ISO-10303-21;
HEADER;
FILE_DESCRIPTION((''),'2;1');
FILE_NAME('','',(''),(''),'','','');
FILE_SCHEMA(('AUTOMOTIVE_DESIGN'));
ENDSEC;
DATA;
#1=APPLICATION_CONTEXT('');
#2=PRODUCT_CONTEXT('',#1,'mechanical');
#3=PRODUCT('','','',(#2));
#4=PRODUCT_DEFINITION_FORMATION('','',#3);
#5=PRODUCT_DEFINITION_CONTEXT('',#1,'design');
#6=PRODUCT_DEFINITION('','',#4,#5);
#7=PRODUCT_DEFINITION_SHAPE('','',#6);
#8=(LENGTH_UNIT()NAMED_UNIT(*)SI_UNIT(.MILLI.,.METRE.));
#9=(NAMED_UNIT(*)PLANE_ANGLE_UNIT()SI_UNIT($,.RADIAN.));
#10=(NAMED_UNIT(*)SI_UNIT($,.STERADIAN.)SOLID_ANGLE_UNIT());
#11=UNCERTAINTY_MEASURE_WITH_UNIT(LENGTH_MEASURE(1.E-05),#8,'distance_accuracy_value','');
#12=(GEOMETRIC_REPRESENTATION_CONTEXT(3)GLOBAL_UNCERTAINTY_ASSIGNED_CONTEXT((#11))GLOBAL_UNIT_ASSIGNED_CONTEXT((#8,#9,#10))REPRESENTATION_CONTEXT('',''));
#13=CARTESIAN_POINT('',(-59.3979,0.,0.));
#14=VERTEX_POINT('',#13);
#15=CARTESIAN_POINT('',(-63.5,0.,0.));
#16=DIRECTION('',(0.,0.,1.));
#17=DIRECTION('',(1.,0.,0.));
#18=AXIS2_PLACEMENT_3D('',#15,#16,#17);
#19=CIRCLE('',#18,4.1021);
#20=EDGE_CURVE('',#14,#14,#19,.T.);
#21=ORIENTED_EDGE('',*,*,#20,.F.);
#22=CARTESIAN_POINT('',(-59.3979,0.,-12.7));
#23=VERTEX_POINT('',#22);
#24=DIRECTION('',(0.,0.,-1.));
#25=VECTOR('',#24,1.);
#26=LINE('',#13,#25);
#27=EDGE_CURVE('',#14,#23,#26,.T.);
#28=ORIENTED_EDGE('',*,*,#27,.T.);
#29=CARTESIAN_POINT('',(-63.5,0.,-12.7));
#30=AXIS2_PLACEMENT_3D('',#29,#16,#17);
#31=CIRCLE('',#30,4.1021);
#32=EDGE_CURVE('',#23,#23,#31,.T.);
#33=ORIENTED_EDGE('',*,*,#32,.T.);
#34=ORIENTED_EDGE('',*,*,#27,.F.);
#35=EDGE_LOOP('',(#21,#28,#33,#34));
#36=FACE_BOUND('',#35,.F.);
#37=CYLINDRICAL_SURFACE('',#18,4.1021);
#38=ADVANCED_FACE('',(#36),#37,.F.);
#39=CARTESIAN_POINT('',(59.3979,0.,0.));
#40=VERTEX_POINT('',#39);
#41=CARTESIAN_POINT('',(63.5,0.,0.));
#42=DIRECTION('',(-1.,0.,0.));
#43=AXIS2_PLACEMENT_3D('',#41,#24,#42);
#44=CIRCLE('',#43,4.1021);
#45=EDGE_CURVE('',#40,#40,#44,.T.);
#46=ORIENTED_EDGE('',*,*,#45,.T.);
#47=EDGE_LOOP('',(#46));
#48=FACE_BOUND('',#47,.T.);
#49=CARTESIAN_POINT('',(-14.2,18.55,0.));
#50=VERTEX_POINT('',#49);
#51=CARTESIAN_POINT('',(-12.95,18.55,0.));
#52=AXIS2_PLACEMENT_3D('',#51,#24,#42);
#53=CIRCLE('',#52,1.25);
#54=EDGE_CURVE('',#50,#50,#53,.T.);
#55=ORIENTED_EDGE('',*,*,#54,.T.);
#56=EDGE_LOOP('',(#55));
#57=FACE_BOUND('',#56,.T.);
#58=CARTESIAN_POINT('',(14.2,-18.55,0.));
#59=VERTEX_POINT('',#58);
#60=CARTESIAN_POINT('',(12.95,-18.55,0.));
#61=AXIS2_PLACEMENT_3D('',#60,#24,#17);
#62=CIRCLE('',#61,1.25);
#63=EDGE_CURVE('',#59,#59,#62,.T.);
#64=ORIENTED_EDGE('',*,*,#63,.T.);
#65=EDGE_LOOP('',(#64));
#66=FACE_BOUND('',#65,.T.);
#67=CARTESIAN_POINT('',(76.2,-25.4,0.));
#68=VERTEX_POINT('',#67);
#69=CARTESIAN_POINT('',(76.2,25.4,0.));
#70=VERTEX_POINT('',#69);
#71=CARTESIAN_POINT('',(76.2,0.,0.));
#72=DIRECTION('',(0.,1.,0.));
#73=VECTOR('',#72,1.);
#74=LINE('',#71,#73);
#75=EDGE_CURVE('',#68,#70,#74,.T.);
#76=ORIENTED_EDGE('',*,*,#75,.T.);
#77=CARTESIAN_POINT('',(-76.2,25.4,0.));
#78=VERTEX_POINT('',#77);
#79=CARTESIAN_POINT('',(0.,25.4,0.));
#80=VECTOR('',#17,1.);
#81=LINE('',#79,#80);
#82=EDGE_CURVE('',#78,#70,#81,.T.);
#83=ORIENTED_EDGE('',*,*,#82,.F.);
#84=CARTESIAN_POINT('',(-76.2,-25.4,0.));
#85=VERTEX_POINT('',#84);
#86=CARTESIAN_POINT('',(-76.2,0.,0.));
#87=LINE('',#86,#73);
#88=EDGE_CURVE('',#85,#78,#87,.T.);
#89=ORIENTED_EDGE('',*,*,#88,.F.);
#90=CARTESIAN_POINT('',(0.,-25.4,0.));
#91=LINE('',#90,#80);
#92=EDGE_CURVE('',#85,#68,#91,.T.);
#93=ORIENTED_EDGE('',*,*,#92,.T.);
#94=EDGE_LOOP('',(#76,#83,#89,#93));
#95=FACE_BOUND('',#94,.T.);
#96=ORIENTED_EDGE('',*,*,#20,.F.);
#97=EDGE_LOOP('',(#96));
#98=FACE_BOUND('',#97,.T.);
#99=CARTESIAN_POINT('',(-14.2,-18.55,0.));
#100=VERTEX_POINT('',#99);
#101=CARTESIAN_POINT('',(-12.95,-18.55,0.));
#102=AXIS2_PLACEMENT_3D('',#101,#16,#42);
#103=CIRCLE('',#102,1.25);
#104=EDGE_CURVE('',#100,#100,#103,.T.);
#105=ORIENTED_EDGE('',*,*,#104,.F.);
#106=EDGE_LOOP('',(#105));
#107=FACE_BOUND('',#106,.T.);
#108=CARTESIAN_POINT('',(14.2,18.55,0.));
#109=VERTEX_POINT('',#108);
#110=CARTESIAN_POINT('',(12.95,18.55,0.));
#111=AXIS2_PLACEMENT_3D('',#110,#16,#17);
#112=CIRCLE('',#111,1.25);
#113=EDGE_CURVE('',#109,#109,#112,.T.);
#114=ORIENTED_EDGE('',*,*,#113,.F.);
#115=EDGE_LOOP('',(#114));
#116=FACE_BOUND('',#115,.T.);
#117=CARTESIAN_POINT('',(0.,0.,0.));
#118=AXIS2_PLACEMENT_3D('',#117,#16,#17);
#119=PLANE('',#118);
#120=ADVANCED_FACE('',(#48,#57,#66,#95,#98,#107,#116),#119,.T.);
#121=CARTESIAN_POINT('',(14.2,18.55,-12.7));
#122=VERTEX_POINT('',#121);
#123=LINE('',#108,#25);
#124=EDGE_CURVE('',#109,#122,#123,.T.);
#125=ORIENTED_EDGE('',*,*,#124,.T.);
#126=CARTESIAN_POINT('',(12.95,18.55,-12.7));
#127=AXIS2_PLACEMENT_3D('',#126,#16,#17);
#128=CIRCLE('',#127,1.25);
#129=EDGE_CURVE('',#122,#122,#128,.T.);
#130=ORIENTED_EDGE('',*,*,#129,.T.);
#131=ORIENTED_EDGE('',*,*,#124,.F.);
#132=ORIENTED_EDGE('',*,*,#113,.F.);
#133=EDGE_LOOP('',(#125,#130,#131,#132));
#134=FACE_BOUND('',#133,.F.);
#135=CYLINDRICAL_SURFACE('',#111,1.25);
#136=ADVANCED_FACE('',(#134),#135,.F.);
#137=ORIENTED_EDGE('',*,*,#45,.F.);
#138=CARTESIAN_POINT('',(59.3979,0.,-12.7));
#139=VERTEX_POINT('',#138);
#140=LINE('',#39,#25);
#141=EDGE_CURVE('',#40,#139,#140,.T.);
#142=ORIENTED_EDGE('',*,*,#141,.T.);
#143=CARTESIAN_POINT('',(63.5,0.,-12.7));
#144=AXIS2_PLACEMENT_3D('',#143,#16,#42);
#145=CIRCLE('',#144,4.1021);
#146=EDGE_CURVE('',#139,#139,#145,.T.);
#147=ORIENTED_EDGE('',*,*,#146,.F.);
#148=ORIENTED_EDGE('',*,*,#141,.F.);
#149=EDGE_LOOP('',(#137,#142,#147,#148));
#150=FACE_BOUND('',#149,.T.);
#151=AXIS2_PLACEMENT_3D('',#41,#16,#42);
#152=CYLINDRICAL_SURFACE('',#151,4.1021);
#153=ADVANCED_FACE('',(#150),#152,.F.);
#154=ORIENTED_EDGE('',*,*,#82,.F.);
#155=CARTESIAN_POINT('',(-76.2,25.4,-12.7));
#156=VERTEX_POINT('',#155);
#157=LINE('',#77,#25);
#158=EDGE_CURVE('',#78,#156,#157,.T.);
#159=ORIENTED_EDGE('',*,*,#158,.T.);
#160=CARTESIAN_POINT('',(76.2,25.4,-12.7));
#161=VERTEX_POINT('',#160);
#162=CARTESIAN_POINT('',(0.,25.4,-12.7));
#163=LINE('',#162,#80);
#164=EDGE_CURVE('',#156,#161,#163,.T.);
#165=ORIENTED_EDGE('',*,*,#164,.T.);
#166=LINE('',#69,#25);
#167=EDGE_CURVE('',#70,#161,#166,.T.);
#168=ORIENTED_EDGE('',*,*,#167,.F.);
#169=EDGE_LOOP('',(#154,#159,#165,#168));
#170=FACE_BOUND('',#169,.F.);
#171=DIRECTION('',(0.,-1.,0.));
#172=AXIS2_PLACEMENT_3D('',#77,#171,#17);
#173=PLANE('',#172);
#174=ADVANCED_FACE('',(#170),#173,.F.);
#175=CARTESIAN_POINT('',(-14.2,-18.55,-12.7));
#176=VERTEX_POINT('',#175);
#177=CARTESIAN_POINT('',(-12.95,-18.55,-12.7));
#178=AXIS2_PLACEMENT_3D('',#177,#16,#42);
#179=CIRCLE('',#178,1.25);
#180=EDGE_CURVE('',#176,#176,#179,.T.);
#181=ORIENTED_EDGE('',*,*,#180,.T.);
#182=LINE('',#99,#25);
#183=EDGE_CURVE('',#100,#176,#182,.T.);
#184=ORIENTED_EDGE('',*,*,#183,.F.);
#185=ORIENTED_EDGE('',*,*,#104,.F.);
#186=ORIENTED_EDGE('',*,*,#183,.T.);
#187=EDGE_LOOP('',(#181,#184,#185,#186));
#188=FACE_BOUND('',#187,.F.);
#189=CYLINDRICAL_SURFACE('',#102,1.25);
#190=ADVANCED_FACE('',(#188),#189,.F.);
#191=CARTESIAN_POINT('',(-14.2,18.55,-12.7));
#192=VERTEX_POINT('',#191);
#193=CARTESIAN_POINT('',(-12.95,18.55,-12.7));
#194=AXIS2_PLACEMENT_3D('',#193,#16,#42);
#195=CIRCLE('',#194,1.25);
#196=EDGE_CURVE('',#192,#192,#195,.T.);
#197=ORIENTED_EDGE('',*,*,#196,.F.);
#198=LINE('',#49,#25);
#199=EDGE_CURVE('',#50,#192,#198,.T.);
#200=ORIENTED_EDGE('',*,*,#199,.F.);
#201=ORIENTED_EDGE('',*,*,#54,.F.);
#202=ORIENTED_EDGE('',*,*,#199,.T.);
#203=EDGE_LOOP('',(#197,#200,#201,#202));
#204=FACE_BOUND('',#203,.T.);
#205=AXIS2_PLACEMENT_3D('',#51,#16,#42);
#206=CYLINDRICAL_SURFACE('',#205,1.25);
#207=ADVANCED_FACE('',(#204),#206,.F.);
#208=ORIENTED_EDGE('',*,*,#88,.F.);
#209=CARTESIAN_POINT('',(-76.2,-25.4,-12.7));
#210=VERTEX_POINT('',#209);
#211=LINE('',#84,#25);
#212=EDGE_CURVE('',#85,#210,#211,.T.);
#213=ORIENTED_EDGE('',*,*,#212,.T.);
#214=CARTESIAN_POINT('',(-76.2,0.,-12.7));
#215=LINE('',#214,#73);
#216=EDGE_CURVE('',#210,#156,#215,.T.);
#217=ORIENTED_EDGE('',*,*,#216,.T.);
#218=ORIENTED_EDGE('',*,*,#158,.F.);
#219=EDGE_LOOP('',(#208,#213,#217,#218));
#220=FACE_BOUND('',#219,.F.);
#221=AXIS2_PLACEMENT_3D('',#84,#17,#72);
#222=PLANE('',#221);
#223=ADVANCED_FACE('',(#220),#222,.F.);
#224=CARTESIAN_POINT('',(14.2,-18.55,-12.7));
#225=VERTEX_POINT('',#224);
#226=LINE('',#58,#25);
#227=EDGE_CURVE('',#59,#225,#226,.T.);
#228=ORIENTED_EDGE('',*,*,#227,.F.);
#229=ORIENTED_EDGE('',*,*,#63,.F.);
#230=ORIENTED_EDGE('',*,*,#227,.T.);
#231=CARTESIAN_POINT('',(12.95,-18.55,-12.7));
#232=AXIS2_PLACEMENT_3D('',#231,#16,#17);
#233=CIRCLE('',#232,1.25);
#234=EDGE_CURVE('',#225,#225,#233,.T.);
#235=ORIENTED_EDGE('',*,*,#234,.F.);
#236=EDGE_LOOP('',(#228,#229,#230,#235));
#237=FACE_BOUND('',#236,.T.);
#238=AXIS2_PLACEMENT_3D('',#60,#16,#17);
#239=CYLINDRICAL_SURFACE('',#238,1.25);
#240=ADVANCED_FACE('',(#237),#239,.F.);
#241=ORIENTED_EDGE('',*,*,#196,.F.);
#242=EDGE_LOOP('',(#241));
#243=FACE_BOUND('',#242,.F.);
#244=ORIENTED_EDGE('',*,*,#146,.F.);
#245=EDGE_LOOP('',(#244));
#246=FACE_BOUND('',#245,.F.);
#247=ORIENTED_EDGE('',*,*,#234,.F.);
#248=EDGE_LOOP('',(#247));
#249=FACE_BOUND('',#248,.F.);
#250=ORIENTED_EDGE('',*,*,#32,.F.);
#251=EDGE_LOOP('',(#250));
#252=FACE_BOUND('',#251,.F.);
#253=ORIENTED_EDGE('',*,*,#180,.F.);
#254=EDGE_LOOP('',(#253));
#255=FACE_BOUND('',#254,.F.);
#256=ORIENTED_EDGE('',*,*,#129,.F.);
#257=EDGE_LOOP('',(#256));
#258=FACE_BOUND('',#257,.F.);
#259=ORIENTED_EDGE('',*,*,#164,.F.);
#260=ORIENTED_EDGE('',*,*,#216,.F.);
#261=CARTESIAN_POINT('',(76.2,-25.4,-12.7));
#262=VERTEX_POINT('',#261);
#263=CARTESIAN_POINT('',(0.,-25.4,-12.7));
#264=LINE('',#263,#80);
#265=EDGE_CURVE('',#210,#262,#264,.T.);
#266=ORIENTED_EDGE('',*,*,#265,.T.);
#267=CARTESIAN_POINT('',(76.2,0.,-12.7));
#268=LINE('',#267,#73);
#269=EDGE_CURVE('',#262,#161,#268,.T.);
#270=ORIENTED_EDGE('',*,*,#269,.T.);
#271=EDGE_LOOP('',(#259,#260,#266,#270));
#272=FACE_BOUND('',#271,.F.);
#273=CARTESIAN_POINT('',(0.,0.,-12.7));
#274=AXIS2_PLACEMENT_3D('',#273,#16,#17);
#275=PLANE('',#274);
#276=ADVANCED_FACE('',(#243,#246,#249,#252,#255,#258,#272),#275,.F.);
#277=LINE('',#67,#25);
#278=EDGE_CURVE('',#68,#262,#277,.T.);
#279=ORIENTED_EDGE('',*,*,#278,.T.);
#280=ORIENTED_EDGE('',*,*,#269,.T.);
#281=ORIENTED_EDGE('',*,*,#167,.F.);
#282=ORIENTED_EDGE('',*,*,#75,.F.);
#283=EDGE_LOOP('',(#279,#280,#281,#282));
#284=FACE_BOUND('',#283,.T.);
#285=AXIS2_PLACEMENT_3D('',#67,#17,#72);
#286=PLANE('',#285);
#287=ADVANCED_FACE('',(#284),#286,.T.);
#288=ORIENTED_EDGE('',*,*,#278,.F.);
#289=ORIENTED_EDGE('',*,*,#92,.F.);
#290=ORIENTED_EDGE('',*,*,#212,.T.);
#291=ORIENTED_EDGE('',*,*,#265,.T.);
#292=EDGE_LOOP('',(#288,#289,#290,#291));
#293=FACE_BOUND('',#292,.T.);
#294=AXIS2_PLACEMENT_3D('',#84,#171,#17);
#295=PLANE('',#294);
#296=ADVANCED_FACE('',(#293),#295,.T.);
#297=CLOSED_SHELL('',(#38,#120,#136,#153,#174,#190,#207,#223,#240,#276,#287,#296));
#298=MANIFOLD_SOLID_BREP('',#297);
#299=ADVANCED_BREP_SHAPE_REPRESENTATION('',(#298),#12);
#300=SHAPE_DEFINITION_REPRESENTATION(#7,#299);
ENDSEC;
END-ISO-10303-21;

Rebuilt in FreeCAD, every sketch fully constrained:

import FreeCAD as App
import Part
import Sketcher
from FreeCAD import Vector
Q = App.Units.Quantity

doc = App.newDocument("Part")
params = doc.addObject("Spreadsheet::Sheet", "Params")
for row, (alias, value) in enumerate([
    ("sketch1_width", "6 in"),
    ("sketch1_height", "2 in"),
    ("pad1_length", "0.5 in"),
    ("sketch2_diameter", "0.323 in"),
], start=1):
    params.set(f"A{row}", alias)
    params.set(f"B{row}", "=" + value)
    params.setAlias(f"B{row}", alias)

body = doc.addObject("PartDesign::Body", "Body")

# Sketch on XY plane
sketch1 = doc.addObject("Sketcher::SketchObject", "Sketch")
body.addObject(sketch1)
sketch1.AttachmentSupport = (doc.XY_Plane, [""])
sketch1.MapMode = "FlatFace"
sketch1.addGeometry([
    Part.LineSegment(Vector(-76.2, 25.4, 0), Vector(-76.2, -25.4, 0)),
    Part.LineSegment(Vector(-76.2, -25.4, 0), Vector(76.2, -25.4, 0)),
    Part.LineSegment(Vector(76.2, -25.4, 0), Vector(76.2, 25.4, 0)),
    Part.LineSegment(Vector(76.2, 25.4, 0), Vector(-76.2, 25.4, 0)),
], False)
sketch1.addConstraint([
    Sketcher.Constraint("Coincident", 0, 2, 1, 1),
    Sketcher.Constraint("Coincident", 1, 2, 2, 1),
    Sketcher.Constraint("Coincident", 2, 2, 3, 1),
    Sketcher.Constraint("Coincident", 3, 2, 0, 1),
    Sketcher.Constraint("Vertical", 0),
    Sketcher.Constraint("Horizontal", 1),
    Sketcher.Constraint("Vertical", 2),
    Sketcher.Constraint("Horizontal", 3),
    Sketcher.Constraint("Symmetric", 0, 2, 2, 2, -1, 1),
    Sketcher.Constraint("DistanceX", 1, 1, 1, 2, Q("6 in")),
    Sketcher.Constraint("DistanceY", 0, 2, 0, 1, Q("2 in")),
])
sketch1.setExpression("Constraints[9]", "Params.sketch1_width")
sketch1.setExpression("Constraints[10]", "Params.sketch1_height")
pad1 = doc.addObject("PartDesign::Pad", "Pad")
body.addObject(pad1)
pad1.Profile = sketch1
pad1.setExpression("Length", "Params.pad1_length")
pad1.Reversed = True

# Sketch on XY plane
sketch2 = doc.addObject("Sketcher::SketchObject", "Sketch001")
body.addObject(sketch2)
sketch2.AttachmentSupport = (doc.XY_Plane, [""])
sketch2.MapMode = "FlatFace"
sketch2.addGeometry(Part.Circle(Vector(-63.5, 0, 0), Vector(0, 0, 1), 4.1021), False)
sketch2.addConstraint([
    Sketcher.Constraint("PointOnObject", 0, 3, -1),
    Sketcher.Constraint("Diameter", 0, Q("0.323 in")),
    Sketcher.Constraint("DistanceX", 0, 3, -1, 1, Q("2.5 in")),
])
sketch2.setExpression("Constraints[1]", "Params.sketch2_diameter")
pocket1 = doc.addObject("PartDesign::Pocket", "Pocket")
body.addObject(pocket1)
pocket1.Profile = sketch2
pocket1.Type = "ThroughAll"
doc.recompute()

mirrored = doc.addObject("PartDesign::Mirrored", "Mirrored")
body.addObject(mirrored)
mirrored.Originals = [pocket1]
mirrored.MirrorPlane = (doc.YZ_Plane, [""])
body.Tip = mirrored

# Sketch on XY plane
sketch3 = doc.addObject("Sketcher::SketchObject", "Sketch002")
body.addObject(sketch3)
sketch3.AttachmentSupport = (doc.XY_Plane, [""])
sketch3.MapMode = "FlatFace"
sketch3.addGeometry(Part.Circle(Vector(12.95, 18.55, 0), Vector(0, 0, 1), 1.25), False)
sketch3.addConstraint([
    Sketcher.Constraint("Diameter", 0, Q("2.5 mm")),
    Sketcher.Constraint("DistanceX", -1, 1, 0, 3, Q("12.95 mm")),
    Sketcher.Constraint("DistanceY", -1, 1, 0, 3, Q("18.55 mm")),
])
pocket2 = doc.addObject("PartDesign::Pocket", "Pocket001")
body.addObject(pocket2)
pocket2.Profile = sketch3
pocket2.Type = "ThroughAll"

# Sketch on XY plane
sketch4 = doc.addObject("Sketcher::SketchObject", "Sketch003")
body.addObject(sketch4)
sketch4.AttachmentSupport = (doc.XY_Plane, [""])
sketch4.MapMode = "FlatFace"
sketch4.addGeometry(Part.Circle(Vector(-12.95, 18.55, 0), Vector(0, 0, 1), 1.25), False)
sketch4.addConstraint([
    Sketcher.Constraint("Diameter", 0, Q("2.5 mm")),
    Sketcher.Constraint("DistanceX", 0, 3, -1, 1, Q("12.95 mm")),
    Sketcher.Constraint("DistanceY", -1, 1, 0, 3, Q("18.55 mm")),
])
pocket3 = doc.addObject("PartDesign::Pocket", "Pocket002")
body.addObject(pocket3)
pocket3.Profile = sketch4
pocket3.Type = "ThroughAll"
doc.recompute()

mirrored2 = doc.addObject("PartDesign::Mirrored", "Mirrored001")
body.addObject(mirrored2)
mirrored2.Originals = [pocket2, pocket3]
mirrored2.MirrorPlane = (doc.XZ_Plane, [""])
body.Tip = mirrored2

doc.recompute()
